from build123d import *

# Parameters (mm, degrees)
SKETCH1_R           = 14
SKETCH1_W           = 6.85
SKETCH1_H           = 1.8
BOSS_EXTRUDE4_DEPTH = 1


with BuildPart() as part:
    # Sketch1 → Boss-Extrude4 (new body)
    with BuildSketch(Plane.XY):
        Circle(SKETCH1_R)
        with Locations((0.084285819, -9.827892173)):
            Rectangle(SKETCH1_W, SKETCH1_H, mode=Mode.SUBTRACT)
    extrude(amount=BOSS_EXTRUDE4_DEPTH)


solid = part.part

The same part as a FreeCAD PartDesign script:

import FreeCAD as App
import Part
import Sketcher
from FreeCAD import Vector

doc = App.newDocument("Part")
params = doc.addObject("Spreadsheet::Sheet", "Params")
for row, (alias, value) in enumerate([
    ("sketch1_diameter", "28 mm"),
    ("sketch1_height", "1.8 mm"),
    ("sketch1_width", "6.85 mm"),
    ("pad1_length", "1 mm"),
], start=1):
    params.set(f"A{row}", alias)
    params.set(f"B{row}", "=" + value)
    params.setAlias(f"B{row}", alias)

body = doc.addObject("PartDesign::Body", "Body")

# Sketch on XY plane
sketch1 = body.newObject("Sketcher::SketchObject", "Sketch")
sketch1.AttachmentSupport = (doc.getObject("XY_Plane"), [""])
sketch1.MapMode = "FlatFace"
sketch1.addGeometry([
    Part.Circle(Vector(0, 0, 0), Vector(0, 0, 1), 14),  # 0
    Part.LineSegment(Vector(3.5, -10.7, 0), Vector(-3.3, -10.7, 0)),  # 1
    Part.LineSegment(Vector(-3.3, -10.7, 0), Vector(-3.3, -8.9, 0)),  # 2
    Part.LineSegment(Vector(-3.3, -8.9, 0), Vector(3.5, -8.9, 0)),  # 3
    Part.LineSegment(Vector(3.5, -8.9, 0), Vector(3.5, -10.7, 0)),  # 4
], False)
sketch1.addConstraint([
    Sketcher.Constraint("Coincident", 1, 2, 2, 1),
    Sketcher.Constraint("Coincident", 2, 2, 3, 1),
    Sketcher.Constraint("Coincident", 3, 2, 4, 1),
    Sketcher.Constraint("Coincident", 4, 2, 1, 1),
    Sketcher.Constraint("Horizontal", 1),
    Sketcher.Constraint("Vertical", 2),
    Sketcher.Constraint("Horizontal", 3),
    Sketcher.Constraint("Vertical", 4),
    Sketcher.Constraint("Coincident", 0, 3, -1, 1),
    Sketcher.Constraint("Diameter", 0, 28.0),
    Sketcher.Constraint("DistanceY", 2, 1, 2, 2, 1.8),
    Sketcher.Constraint("DistanceX", 1, 2, 1, 1, 6.85),
    Sketcher.Constraint("DistanceX", 1, 2, -1, 1, 3.340714),
    Sketcher.Constraint("DistanceY", 1, 2, -1, 1, 10.727892),
])
sketch1.setExpression("Constraints[9]", "Params.sketch1_diameter")
sketch1.setExpression("Constraints[10]", "Params.sketch1_height")
sketch1.setExpression("Constraints[11]", "Params.sketch1_width")
pad1 = body.newObject("PartDesign::Pad", "Pad")
pad1.Profile = sketch1
pad1.setExpression("Length", "Params.pad1_length")

doc.recompute()
